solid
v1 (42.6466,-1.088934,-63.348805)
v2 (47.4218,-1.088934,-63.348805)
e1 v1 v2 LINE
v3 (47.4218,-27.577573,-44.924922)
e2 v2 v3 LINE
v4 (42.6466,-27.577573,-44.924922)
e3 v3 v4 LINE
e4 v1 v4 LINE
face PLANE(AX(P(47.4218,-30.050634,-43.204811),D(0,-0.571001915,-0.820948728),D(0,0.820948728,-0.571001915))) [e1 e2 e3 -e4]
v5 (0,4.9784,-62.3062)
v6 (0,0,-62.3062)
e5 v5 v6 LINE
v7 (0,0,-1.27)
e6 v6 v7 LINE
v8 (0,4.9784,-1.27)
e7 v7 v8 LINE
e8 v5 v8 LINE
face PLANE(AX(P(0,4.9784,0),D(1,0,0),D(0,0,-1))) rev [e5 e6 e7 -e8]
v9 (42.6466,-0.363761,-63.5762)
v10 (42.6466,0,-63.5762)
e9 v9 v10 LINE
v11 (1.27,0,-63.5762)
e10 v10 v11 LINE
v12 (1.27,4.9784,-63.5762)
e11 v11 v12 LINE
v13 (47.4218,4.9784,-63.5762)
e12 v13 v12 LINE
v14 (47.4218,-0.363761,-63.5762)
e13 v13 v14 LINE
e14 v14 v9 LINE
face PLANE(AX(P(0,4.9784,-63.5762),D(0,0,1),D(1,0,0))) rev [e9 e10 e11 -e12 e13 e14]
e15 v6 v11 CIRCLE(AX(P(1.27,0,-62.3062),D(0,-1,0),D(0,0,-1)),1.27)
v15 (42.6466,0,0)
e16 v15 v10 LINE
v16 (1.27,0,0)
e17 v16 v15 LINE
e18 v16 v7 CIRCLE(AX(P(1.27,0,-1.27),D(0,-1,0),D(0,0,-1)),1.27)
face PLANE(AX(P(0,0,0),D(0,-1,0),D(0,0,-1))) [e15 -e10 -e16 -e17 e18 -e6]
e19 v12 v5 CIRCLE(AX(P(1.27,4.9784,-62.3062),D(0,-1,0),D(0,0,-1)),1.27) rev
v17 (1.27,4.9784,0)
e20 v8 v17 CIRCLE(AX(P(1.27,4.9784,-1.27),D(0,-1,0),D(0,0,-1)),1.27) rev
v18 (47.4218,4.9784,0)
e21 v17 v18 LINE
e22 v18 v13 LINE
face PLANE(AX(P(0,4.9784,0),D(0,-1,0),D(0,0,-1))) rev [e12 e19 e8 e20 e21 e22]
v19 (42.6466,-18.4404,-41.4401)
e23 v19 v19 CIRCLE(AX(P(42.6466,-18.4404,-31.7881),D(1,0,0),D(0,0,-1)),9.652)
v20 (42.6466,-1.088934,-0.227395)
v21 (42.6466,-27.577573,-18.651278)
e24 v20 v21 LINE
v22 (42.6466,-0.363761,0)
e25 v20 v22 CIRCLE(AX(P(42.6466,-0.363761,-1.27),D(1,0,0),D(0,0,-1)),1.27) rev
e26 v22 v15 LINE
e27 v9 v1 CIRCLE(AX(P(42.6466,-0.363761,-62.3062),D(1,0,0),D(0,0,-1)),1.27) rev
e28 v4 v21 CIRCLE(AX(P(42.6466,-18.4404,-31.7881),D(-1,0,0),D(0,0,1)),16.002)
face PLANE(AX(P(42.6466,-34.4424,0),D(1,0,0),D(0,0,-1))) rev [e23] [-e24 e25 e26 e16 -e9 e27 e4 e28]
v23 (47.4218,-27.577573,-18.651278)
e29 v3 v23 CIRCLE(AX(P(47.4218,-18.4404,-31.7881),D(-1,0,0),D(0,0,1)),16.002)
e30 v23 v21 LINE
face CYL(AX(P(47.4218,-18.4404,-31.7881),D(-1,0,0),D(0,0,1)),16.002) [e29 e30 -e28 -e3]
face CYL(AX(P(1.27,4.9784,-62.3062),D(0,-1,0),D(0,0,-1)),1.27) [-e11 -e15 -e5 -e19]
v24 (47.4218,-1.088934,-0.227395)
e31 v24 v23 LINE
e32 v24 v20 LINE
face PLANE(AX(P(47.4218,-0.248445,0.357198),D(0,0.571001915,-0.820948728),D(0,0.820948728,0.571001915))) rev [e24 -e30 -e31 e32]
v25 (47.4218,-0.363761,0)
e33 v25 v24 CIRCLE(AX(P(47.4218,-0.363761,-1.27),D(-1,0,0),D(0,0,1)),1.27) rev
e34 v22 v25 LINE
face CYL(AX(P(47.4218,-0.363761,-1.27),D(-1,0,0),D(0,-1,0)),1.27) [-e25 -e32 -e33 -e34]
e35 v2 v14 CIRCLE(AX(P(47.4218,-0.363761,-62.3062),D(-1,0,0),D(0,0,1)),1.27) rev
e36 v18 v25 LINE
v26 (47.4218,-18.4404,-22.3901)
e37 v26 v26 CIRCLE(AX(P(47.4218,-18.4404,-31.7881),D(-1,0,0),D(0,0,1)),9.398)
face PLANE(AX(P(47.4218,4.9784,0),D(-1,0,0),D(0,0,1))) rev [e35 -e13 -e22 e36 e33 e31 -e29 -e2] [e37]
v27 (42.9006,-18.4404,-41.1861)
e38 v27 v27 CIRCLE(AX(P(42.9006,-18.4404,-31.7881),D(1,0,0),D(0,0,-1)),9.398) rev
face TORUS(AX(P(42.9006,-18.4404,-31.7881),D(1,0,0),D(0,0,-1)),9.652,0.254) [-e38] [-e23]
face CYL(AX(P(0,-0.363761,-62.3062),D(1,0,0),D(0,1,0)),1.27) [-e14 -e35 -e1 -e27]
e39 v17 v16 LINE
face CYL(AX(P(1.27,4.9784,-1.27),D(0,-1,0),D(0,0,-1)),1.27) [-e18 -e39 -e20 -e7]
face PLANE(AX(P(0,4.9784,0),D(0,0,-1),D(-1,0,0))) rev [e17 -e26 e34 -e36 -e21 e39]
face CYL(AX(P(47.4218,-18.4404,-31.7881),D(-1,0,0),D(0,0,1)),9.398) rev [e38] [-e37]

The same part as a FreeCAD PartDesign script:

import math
import FreeCAD as App
import Part
import Sketcher
Q = App.Units.Quantity


def edges_at(feature, points):
    """Names of the edges that pass closest to the given points."""
    edges = feature.Shape.Edges
    near = lambda p: min(range(len(edges)), key=lambda i: edges[i].distToShape(Part.Vertex(*p))[0])
    return sorted({f"Edge{near(p) + 1}" for p in points})


def add_polygon(sketch, points):
    """Adds a closed chain of lines whose ends are joined by coincident constraints."""
    first, n = sketch.GeometryCount, len(points)
    for a, b in zip(points, points[1:] + points[:1]):
        sketch.addGeometry(Part.LineSegment(App.Vector(*a, 0), App.Vector(*b, 0)), False)
    for i in range(n):
        sketch.addConstraint(Sketcher.Constraint("Coincident", first + i, 2, first + (i + 1) % n, 1))

doc = App.newDocument("Part")
body = doc.addObject("PartDesign::Body", "Body")

# Sketch on XZ plane
sketch1 = body.newObject("Sketcher::SketchObject", "Sketch")
sketch1.AttachmentSupport = (doc.getObject("XZ_Plane"), [""])
sketch1.MapMode = "FlatFace"
add_polygon(sketch1, [(0, -63.5762), (0, 0), (47.4218, 0), (47.4218, -63.5762)])  # lines 0-3
sketch1.addConstraint([
    Sketcher.Constraint("Vertical", 0),
    Sketcher.Constraint("Horizontal", 1),
    Sketcher.Constraint("Vertical", 2),
    Sketcher.Constraint("Horizontal", 3),
    Sketcher.Constraint("Coincident", 0, 2, -1, 1),
    Sketcher.Constraint("DistanceX", 1, 1, 1, 2, Q("1.867 in")),
    Sketcher.Constraint("DistanceY", 0, 1, 0, 2, Q("2.503 in")),
])
pad1 = body.newObject("PartDesign::Pad", "Pad")
pad1.Profile = sketch1
pad1.Length = Q("0.196 in")
pad1.Reversed = True

# Sketch on XZ plane
sketch2 = body.newObject("Sketcher::SketchObject", "Sketch001")
sketch2.AttachmentSupport = (doc.getObject("XZ_Plane"), [""])
sketch2.MapMode = "FlatFace"
add_polygon(sketch2, [(42.6466, 0), (42.6466, -63.5762), (47.4218, -63.5762), (47.4218, 0)])  # lines 0-3
sketch2.addConstraint([
    Sketcher.Constraint("Vertical", 0),
    Sketcher.Constraint("Horizontal", 1),
    Sketcher.Constraint("Vertical", 2),
    Sketcher.Constraint("Horizontal", 3),
    Sketcher.Constraint("PointOnObject", 2, 2, -1),
    Sketcher.Constraint("DistanceX", 1, 1, 1, 2, Q("0.188 in")),
    Sketcher.Constraint("DistanceY", 0, 2, 0, 1, Q("2.503 in")),
    Sketcher.Constraint("DistanceX", -1, 1, 0, 2, Q("1.679 in")),
])
pad2 = body.newObject("PartDesign::Pad", "Pad001")
pad2.Profile = sketch2
pad2.Length = Q("1.356 in")

# Sketch on YZ plane
sketch3 = body.newObject("Sketcher::SketchObject", "Sketch002")
sketch3.AttachmentSupport = (doc.getObject("YZ_Plane"), [""])
sketch3.MapMode = "FlatFace"
sketch3.AttachmentOffset = App.Placement(App.Vector(0, 0, 1.679 * 25.4), App.Rotation())
sketch3.addGeometry([
    Part.LineSegment(App.Vector(-34.4424, 0, 0), App.Vector(-0.762, 0, 0)),  # 0
    Part.LineSegment(App.Vector(-0.762, 0, 0), App.Vector(-27.577573, -18.651278, 0)),  # 1
    Part.ArcOfCircle(Part.Circle(App.Vector(-18.4404, -31.7881, 0), App.Vector(0, 0, 1), 16.002), math.radians(124.820122), math.radians(180)),  # 2
    Part.LineSegment(App.Vector(-34.4424, -31.7881, 0), App.Vector(-34.4424, 0, 0)),  # 3
    Part.LineSegment(App.Vector(-27.577573, -44.924922, 0), App.Vector(-0.762, -63.5762, 0)),  # 4
    Part.LineSegment(App.Vector(-0.762, -63.5762, 0), App.Vector(-34.4424, -63.5762, 0)),  # 5
    Part.LineSegment(App.Vector(-34.4424, -63.5762, 0), App.Vector(-34.4424, -31.7881, 0)),  # 6
    Part.ArcOfCircle(Part.Circle(App.Vector(-18.4404, -31.7881, 0), App.Vector(0, 0, 1), 16.002), math.radians(-180), math.radians(-124.820122)),  # 7
    Part.Circle(App.Vector(-18.4404, -31.7881, 0), App.Vector(0, 0, 1), 9.398),  # 8
], False)
sketch3.addConstraint([
    Sketcher.Constraint("Coincident", 0, 2, 1, 1),
    Sketcher.Constraint("Tangent", 1, 2, 2, 1),
    Sketcher.Constraint("Tangent", 2, 2, 3, 1),
    Sketcher.Constraint("Coincident", 3, 2, 0, 1),
    Sketcher.Constraint("Coincident", 4, 2, 5, 1),
    Sketcher.Constraint("Coincident", 5, 2, 6, 1),
    Sketcher.Constraint("Tangent", 6, 2, 7, 1),
    Sketcher.Constraint("Tangent", 7, 2, 4, 1),
    Sketcher.Constraint("Horizontal", 0),
    Sketcher.Constraint("Vertical", 3),
    Sketcher.Constraint("Horizontal", 5),
    Sketcher.Constraint("Vertical", 6),
    Sketcher.Constraint("Coincident", 7, 3, 2, 3),
    Sketcher.Constraint("Coincident", 8, 3, 2, 3),
    Sketcher.Constraint("Equal", 2, 7),
    Sketcher.Constraint("PointOnObject", 0, 2, -1),
    Sketcher.Constraint("Vertical", 0, 2, 4, 2),
    Sketcher.Constraint("Vertical", 1, 2, 7, 2),
    Sketcher.Constraint("Diameter", 8, Q("0.74 in")),
    Sketcher.Constraint("Radius", 2, Q("0.63 in")),
    Sketcher.Constraint("DistanceX", 0, 1, 0, 2, Q("1.326 in")),
    Sketcher.Constraint("DistanceX", 0, 2, -1, 1, Q("0.03 in")),
    Sketcher.Constraint("DistanceY", 3, 1, 3, 2, Q("1.2515 in")),
])
pocket1 = body.newObject("PartDesign::Pocket", "Pocket")
pocket1.Profile = sketch3
pocket1.Type = "ThroughAll"
pocket1.Reversed = True
doc.recompute()

fillet = body.newObject("PartDesign::Fillet", "Fillet")
fillet.Base = (pocket1, edges_at(pocket1, [(45.034, -0.762, 0), (45.034, -0.762, -63.576)]))
fillet.Radius = Q("0.05 in")
doc.recompute()

fillet2 = body.newObject("PartDesign::Fillet", "Fillet001")
fillet2.Base = (fillet, edges_at(fillet, [(0, 2.489, -63.576), (0, 2.489, 0)]))
fillet2.Radius = Q("0.05 in")
doc.recompute()

fillet3 = body.newObject("PartDesign::Fillet", "Fillet002")
fillet3.Base = (fillet2, edges_at(fillet2, [(42.647, -18.44, -41.186)]))
fillet3.Radius = Q("0.01 in")

doc.recompute()
